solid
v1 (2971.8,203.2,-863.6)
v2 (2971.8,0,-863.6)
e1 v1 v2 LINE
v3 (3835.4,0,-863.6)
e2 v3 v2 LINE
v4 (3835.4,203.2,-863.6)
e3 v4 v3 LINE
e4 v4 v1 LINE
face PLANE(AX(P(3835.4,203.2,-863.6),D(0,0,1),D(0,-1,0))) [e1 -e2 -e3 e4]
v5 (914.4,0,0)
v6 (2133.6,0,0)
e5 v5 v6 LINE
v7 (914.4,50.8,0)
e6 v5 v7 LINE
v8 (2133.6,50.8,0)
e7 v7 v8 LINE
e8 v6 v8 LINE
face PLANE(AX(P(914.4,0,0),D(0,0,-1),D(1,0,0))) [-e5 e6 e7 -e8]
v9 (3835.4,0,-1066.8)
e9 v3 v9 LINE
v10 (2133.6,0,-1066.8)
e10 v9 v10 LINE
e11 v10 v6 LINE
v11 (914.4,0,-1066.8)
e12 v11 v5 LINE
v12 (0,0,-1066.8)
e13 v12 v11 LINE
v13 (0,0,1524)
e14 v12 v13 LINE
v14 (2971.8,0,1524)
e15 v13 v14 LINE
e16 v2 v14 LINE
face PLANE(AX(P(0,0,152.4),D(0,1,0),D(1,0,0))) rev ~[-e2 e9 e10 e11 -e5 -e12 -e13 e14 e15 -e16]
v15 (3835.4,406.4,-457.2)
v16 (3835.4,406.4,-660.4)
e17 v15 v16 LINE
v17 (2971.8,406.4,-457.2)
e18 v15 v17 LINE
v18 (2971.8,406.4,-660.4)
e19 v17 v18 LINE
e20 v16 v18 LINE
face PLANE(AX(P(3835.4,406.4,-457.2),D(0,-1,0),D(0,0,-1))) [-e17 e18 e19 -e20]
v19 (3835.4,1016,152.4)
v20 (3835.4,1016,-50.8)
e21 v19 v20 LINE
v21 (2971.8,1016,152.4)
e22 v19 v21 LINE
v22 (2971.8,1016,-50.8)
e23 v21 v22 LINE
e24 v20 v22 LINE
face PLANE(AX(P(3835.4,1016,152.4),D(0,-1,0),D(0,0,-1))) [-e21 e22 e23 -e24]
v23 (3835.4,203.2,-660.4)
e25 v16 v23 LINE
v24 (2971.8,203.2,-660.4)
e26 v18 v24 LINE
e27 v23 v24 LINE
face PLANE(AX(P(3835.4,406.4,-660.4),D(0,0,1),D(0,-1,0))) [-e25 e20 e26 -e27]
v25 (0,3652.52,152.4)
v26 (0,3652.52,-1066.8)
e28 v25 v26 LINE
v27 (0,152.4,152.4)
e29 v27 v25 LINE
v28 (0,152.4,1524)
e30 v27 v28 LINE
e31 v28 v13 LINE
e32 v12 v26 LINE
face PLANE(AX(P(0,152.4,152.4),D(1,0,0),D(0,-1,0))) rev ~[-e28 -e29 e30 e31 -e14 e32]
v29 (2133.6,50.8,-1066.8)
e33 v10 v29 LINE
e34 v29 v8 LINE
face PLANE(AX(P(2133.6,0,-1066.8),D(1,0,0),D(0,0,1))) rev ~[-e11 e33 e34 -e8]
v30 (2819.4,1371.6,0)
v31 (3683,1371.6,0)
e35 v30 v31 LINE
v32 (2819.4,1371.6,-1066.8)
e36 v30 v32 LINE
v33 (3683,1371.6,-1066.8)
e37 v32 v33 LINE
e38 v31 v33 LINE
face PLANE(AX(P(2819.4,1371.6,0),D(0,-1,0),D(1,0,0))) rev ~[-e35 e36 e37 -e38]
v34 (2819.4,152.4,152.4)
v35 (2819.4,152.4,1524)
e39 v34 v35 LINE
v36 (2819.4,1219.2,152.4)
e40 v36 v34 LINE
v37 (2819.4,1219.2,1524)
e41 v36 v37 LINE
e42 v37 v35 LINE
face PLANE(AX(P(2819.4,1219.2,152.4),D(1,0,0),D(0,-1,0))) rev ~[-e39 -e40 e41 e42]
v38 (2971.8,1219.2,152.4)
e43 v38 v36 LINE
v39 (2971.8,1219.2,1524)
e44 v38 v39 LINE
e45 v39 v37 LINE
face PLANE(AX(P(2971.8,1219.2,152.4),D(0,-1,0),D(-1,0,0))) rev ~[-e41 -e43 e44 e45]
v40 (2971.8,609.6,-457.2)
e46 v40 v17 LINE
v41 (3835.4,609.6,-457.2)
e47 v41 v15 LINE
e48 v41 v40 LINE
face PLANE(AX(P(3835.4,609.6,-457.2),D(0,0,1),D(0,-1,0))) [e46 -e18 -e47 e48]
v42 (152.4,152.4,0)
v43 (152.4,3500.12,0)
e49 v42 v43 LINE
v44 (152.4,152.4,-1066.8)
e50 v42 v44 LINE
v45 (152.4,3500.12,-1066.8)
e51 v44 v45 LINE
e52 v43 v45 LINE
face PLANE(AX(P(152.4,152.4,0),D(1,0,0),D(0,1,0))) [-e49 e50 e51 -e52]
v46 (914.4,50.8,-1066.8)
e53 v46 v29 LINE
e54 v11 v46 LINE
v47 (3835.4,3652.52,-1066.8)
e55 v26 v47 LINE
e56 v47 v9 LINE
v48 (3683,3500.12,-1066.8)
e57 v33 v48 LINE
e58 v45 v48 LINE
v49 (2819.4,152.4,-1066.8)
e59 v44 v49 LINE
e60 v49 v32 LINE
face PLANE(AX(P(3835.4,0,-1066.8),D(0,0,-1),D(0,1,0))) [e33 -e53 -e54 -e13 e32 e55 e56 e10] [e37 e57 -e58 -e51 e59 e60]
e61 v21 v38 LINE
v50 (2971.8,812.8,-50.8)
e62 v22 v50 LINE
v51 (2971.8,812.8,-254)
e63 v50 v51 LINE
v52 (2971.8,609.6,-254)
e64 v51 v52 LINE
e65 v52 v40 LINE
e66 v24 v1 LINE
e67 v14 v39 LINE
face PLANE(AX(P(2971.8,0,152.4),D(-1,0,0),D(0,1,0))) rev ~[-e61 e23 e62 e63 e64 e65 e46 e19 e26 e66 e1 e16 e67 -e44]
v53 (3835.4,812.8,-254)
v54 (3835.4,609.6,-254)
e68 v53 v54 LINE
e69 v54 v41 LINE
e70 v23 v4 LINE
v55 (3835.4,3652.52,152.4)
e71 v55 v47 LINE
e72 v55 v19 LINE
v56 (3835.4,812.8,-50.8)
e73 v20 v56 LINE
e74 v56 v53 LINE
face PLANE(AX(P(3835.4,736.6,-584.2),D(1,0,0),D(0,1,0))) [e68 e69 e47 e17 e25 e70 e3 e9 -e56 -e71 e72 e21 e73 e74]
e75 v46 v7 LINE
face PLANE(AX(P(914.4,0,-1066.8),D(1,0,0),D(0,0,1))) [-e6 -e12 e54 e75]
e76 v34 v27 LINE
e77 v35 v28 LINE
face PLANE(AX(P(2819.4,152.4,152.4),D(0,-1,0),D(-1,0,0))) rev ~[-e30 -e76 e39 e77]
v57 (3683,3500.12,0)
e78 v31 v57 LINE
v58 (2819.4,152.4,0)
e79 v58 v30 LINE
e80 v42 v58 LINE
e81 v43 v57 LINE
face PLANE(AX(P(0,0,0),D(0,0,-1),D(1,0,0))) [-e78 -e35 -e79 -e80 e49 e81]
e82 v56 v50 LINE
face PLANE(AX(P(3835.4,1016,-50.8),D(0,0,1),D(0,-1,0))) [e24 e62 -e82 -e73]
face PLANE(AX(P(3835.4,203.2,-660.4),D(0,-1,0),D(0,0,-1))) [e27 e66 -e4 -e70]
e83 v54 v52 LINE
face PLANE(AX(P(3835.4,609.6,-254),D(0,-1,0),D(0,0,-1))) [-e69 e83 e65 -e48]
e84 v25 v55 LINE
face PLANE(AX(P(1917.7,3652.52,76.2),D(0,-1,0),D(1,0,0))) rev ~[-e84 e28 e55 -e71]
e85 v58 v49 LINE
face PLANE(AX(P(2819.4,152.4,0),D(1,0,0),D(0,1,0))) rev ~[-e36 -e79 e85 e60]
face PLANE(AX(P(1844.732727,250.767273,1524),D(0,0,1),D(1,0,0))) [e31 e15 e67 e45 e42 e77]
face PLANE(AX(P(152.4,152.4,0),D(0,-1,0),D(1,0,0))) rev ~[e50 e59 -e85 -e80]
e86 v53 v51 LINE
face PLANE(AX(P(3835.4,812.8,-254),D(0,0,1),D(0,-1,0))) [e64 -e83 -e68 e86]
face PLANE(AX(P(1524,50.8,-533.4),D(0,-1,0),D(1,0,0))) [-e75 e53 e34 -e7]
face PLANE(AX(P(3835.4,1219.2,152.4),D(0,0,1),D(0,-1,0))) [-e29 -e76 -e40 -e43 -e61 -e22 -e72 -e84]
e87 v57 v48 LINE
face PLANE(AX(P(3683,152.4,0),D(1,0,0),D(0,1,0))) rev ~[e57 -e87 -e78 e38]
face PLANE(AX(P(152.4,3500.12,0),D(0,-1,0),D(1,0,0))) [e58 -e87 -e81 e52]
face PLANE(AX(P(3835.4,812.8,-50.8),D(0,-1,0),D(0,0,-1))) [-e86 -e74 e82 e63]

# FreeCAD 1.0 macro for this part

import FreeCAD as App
import Part
import Sketcher
from FreeCAD import Vector
Q = App.Units.Quantity

doc = App.newDocument("Part")
params = doc.addObject("Spreadsheet::Sheet", "Params")
for row, (alias, value) in enumerate([
    ("sketch1_width", "151 in"),
    ("sketch1_width2", "139 in"),
    ("sketch1_height", "143.8 in"),
    ("sketch1_height2", "131.8 in"),
    ("pad1_length", "42 in"),
    ("sketch2_width", "151 in"),
    ("sketch2_height", "6 in"),
    ("pad2_length", "143.8 in"),
    ("sketch3_width", "34 in"),
    ("sketch3_height", "48 in"),
    ("sketch4_width", "34 in"),
    ("sketch4_width2", "28 in"),
    ("sketch4_height", "48 in"),
    ("pad3_length", "42 in"),
    ("sketch5_width", "48 in"),
    ("sketch5_height", "42 in"),
    ("pocket2_length", "2 in"),
    ("sketch6_width", "48 in"),
    ("pad4_length", "34 in"),
    ("sketch7_width", "117 in"),
    ("sketch7_width2", "6 in"),
    ("sketch7_height", "48 in"),
    ("pad5_length", "54 in"),
], start=1):
    params.set(f"A{row}", alias)
    params.set(f"B{row}", "=" + value)
    params.setAlias(f"B{row}", alias)

body = doc.addObject("PartDesign::Body", "Body")

# Sketch on XY plane
sketch1 = body.newObject("Sketcher::SketchObject", "Sketch")
sketch1.AttachmentSupport = (doc.getObject("XY_Plane"), [""])
sketch1.MapMode = "FlatFace"
sketch1.addGeometry(Part.LineSegment(Vector(0, 3653, 0), Vector(0, 0, 0)), False)
sketch1.addGeometry(Part.LineSegment(Vector(0, 0, 0), Vector(3835, 0, 0)), False)
sketch1.addGeometry(Part.LineSegment(Vector(3835, 0, 0), Vector(3835, 3653, 0)), False)
sketch1.addGeometry(Part.LineSegment(Vector(3835, 3653, 0), Vector(0, 3653, 0)), False)
sketch1.addGeometry(Part.LineSegment(Vector(3683, 152, 0), Vector(152, 152, 0)), False)
sketch1.addGeometry(Part.LineSegment(Vector(152, 152, 0), Vector(152, 3500, 0)), False)
sketch1.addGeometry(Part.LineSegment(Vector(152, 3500, 0), Vector(3683, 3500, 0)), False)
sketch1.addGeometry(Part.LineSegment(Vector(3683, 3500, 0), Vector(3683, 152, 0)), False)
sketch1.addConstraint(Sketcher.Constraint("Coincident", 0, 2, 1, 1))
sketch1.addConstraint(Sketcher.Constraint("Coincident", 1, 2, 2, 1))
sketch1.addConstraint(Sketcher.Constraint("Coincident", 2, 2, 3, 1))
sketch1.addConstraint(Sketcher.Constraint("Coincident", 3, 2, 0, 1))
sketch1.addConstraint(Sketcher.Constraint("Coincident", 4, 2, 5, 1))
sketch1.addConstraint(Sketcher.Constraint("Coincident", 5, 2, 6, 1))
sketch1.addConstraint(Sketcher.Constraint("Coincident", 6, 2, 7, 1))
sketch1.addConstraint(Sketcher.Constraint("Coincident", 7, 2, 4, 1))
sketch1.addConstraint(Sketcher.Constraint("Vertical", 0))
sketch1.addConstraint(Sketcher.Constraint("Horizontal", 1))
sketch1.addConstraint(Sketcher.Constraint("Vertical", 2))
sketch1.addConstraint(Sketcher.Constraint("Horizontal", 3))
sketch1.addConstraint(Sketcher.Constraint("Horizontal", 4))
sketch1.addConstraint(Sketcher.Constraint("Vertical", 5))
sketch1.addConstraint(Sketcher.Constraint("Horizontal", 6))
sketch1.addConstraint(Sketcher.Constraint("Vertical", 7))
sketch1.addConstraint(Sketcher.Constraint("Coincident", 0, 2, -1, 1))
sketch1.addConstraint(Sketcher.Constraint("DistanceX", 1, 1, 1, 2, Q("151 in")))
sketch1.addConstraint(Sketcher.Constraint("DistanceX", 4, 2, 4, 1, Q("139 in")))
sketch1.addConstraint(Sketcher.Constraint("DistanceY", 0, 2, 0, 1, Q("143.8 in")))
sketch1.addConstraint(Sketcher.Constraint("DistanceY", 5, 1, 5, 2, Q("131.8 in")))
sketch1.addConstraint(Sketcher.Constraint("DistanceX", -1, 1, 4, 2, Q("6 in")))
sketch1.addConstraint(Sketcher.Constraint("DistanceY", -1, 1, 4, 2, Q("6 in")))
sketch1.setExpression("Constraints[17]", "Params.sketch1_width")
sketch1.setExpression("Constraints[18]", "Params.sketch1_width2")
sketch1.setExpression("Constraints[19]", "Params.sketch1_height")
sketch1.setExpression("Constraints[20]", "Params.sketch1_height2")
pad1 = body.newObject("PartDesign::Pad", "Pad")
pad1.Profile = sketch1
pad1.setExpression("Length", "Params.pad1_length")
pad1.Reversed = True

# Sketch on XZ plane
sketch2 = body.newObject("Sketcher::SketchObject", "Sketch001")
sketch2.AttachmentSupport = (doc.getObject("XZ_Plane"), [""])
sketch2.MapMode = "FlatFace"
sketch2.addGeometry(Part.LineSegment(Vector(0, 152, 0), Vector(0, 0, 0)), False)
sketch2.addGeometry(Part.LineSegment(Vector(0, 0, 0), Vector(3835, 0, 0)), False)
sketch2.addGeometry(Part.LineSegment(Vector(3835, 0, 0), Vector(3835, 152, 0)), False)
sketch2.addGeometry(Part.LineSegment(Vector(3835, 152, 0), Vector(0, 152, 0)), False)
sketch2.addConstraint(Sketcher.Constraint("Coincident", 0, 2, 1, 1))
sketch2.addConstraint(Sketcher.Constraint("Coincident", 1, 2, 2, 1))
sketch2.addConstraint(Sketcher.Constraint("Coincident", 2, 2, 3, 1))
sketch2.addConstraint(Sketcher.Constraint("Coincident", 3, 2, 0, 1))
sketch2.addConstraint(Sketcher.Constraint("Vertical", 0))
sketch2.addConstraint(Sketcher.Constraint("Horizontal", 1))
sketch2.addConstraint(Sketcher.Constraint("Vertical", 2))
sketch2.addConstraint(Sketcher.Constraint("Horizontal", 3))
sketch2.addConstraint(Sketcher.Constraint("Coincident", 0, 2, -1, 1))
sketch2.addConstraint(Sketcher.Constraint("DistanceX", 1, 1, 1, 2, Q("151 in")))
sketch2.addConstraint(Sketcher.Constraint("DistanceY", 0, 2, 0, 1, Q("6 in")))
sketch2.setExpression("Constraints[9]", "Params.sketch2_width")
sketch2.setExpression("Constraints[10]", "Params.sketch2_height")
pad2 = body.newObject("PartDesign::Pad", "Pad001")
pad2.Profile = sketch2
pad2.setExpression("Length", "Params.pad2_length")
pad2.Reversed = True

# Sketch on XY plane
sketch3 = body.newObject("Sketcher::SketchObject", "Sketch002")
sketch3.AttachmentSupport = (doc.getObject("XY_Plane"), [""])
sketch3.MapMode = "FlatFace"
sketch3.AttachmentOffset = App.Placement(Vector(0, 0, 6 * 25.4), App.Rotation())
sketch3.addGeometry(Part.LineSegment(Vector(2972, 1219, 0), Vector(2972, 0, 0)), False)
sketch3.addGeometry(Part.LineSegment(Vector(2972, 0, 0), Vector(3835, 0, 0)), False)
sketch3.addGeometry(Part.LineSegment(Vector(3835, 0, 0), Vector(3835, 1219, 0)), False)
sketch3.addGeometry(Part.LineSegment(Vector(3835, 1219, 0), Vector(2972, 1219, 0)), False)
sketch3.addConstraint(Sketcher.Constraint("Coincident", 0, 2, 1, 1))
sketch3.addConstraint(Sketcher.Constraint("Coincident", 1, 2, 2, 1))
sketch3.addConstraint(Sketcher.Constraint("Coincident", 2, 2, 3, 1))
sketch3.addConstraint(Sketcher.Constraint("Coincident", 3, 2, 0, 1))
sketch3.addConstraint(Sketcher.Constraint("Vertical", 0))
sketch3.addConstraint(Sketcher.Constraint("Horizontal", 1))
sketch3.addConstraint(Sketcher.Constraint("Vertical", 2))
sketch3.addConstraint(Sketcher.Constraint("Horizontal", 3))
sketch3.addConstraint(Sketcher.Constraint("PointOnObject", 0, 2, -1))
sketch3.addConstraint(Sketcher.Constraint("DistanceX", 1, 1, 1, 2, Q("34 in")))
sketch3.addConstraint(Sketcher.Constraint("DistanceY", 0, 2, 0, 1, Q("48 in")))
sketch3.addConstraint(Sketcher.Constraint("DistanceX", -1, 1, 0, 2, Q("117 in")))
sketch3.setExpression("Constraints[9]", "Params.sketch3_width")
sketch3.setExpression("Constraints[10]", "Params.sketch3_height")
pocket1 = body.newObject("PartDesign::Pocket", "Pocket")
pocket1.Profile = sketch3
pocket1.Type = "ThroughAll"

# Sketch on XY plane
sketch4 = body.newObject("Sketcher::SketchObject", "Sketch003")
sketch4.AttachmentSupport = (doc.getObject("XY_Plane"), [""])
sketch4.MapMode = "FlatFace"
sketch4.addGeometry(Part.LineSegment(Vector(2819, 152, 0), Vector(2819, 1372, 0)), False)
sketch4.addGeometry(Part.LineSegment(Vector(2819, 1372, 0), Vector(3683, 1372, 0)), False)
sketch4.addGeometry(Part.LineSegment(Vector(3683, 1372, 0), Vector(3683, 1219, 0)), False)
sketch4.addGeometry(Part.LineSegment(Vector(3683, 1219, 0), Vector(2972, 1219, 0)), False)
sketch4.addGeometry(Part.LineSegment(Vector(2972, 1219, 0), Vector(2972, 152, 0)), False)
sketch4.addGeometry(Part.LineSegment(Vector(2972, 152, 0), Vector(2819, 152, 0)), False)
sketch4.addConstraint(Sketcher.Constraint("Coincident", 0, 2, 1, 1))
sketch4.addConstraint(Sketcher.Constraint("Coincident", 1, 2, 2, 1))
sketch4.addConstraint(Sketcher.Constraint("Coincident", 2, 2, 3, 1))
sketch4.addConstraint(Sketcher.Constraint("Coincident", 3, 2, 4, 1))
sketch4.addConstraint(Sketcher.Constraint("Coincident", 4, 2, 5, 1))
sketch4.addConstraint(Sketcher.Constraint("Coincident", 5, 2, 0, 1))
sketch4.addConstraint(Sketcher.Constraint("Vertical", 0))
sketch4.addConstraint(Sketcher.Constraint("Horizontal", 1))
sketch4.addConstraint(Sketcher.Constraint("Vertical", 2))
sketch4.addConstraint(Sketcher.Constraint("Horizontal", 3))
sketch4.addConstraint(Sketcher.Constraint("Vertical", 4))
sketch4.addConstraint(Sketcher.Constraint("Horizontal", 5))
sketch4.addConstraint(Sketcher.Constraint("Equal", 5, 2))
sketch4.addConstraint(Sketcher.Constraint("DistanceX", 1, 1, 1, 2, Q("34 in")))
sketch4.addConstraint(Sketcher.Constraint("DistanceX", 3, 2, 3, 1, Q("28 in")))
sketch4.addConstraint(Sketcher.Constraint("DistanceY", 0, 1, 0, 2, Q("48 in")))
sketch4.addConstraint(Sketcher.Constraint("DistanceX", -1, 1, 0, 2, Q("111 in")))
sketch4.addConstraint(Sketcher.Constraint("DistanceY", -1, 1, 0, 2, Q("54 in")))
sketch4.setExpression("Constraints[13]", "Params.sketch4_width")
sketch4.setExpression("Constraints[14]", "Params.sketch4_width2")
sketch4.setExpression("Constraints[15]", "Params.sketch4_height")
pad3 = body.newObject("PartDesign::Pad", "Pad002")
pad3.Profile = sketch4
pad3.setExpression("Length", "Params.pad3_length")
pad3.Reversed = True

# Sketch on XZ plane
sketch5 = body.newObject("Sketcher::SketchObject", "Sketch004")
sketch5.AttachmentSupport = (doc.getObject("XZ_Plane"), [""])
sketch5.MapMode = "FlatFace"
sketch5.addGeometry(Part.LineSegment(Vector(914, 0, 0), Vector(914, -1067, 0)), False)
sketch5.addGeometry(Part.LineSegment(Vector(914, -1067, 0), Vector(2134, -1067, 0)), False)
sketch5.addGeometry(Part.LineSegment(Vector(2134, -1067, 0), Vector(2134, 0, 0)), False)
sketch5.addGeometry(Part.LineSegment(Vector(2134, 0, 0), Vector(914, 0, 0)), False)
sketch5.addConstraint(Sketcher.Constraint("Coincident", 0, 2, 1, 1))
sketch5.addConstraint(Sketcher.Constraint("Coincident", 1, 2, 2, 1))
sketch5.addConstraint(Sketcher.Constraint("Coincident", 2, 2, 3, 1))
sketch5.addConstraint(Sketcher.Constraint("Coincident", 3, 2, 0, 1))
sketch5.addConstraint(Sketcher.Constraint("Vertical", 0))
sketch5.addConstraint(Sketcher.Constraint("Horizontal", 1))
sketch5.addConstraint(Sketcher.Constraint("Vertical", 2))
sketch5.addConstraint(Sketcher.Constraint("Horizontal", 3))
sketch5.addConstraint(Sketcher.Constraint("PointOnObject", 2, 2, -1))
sketch5.addConstraint(Sketcher.Constraint("DistanceX", 1, 1, 1, 2, Q("48 in")))
sketch5.addConstraint(Sketcher.Constraint("DistanceY", 0, 2, 0, 1, Q("42 in")))
sketch5.addConstraint(Sketcher.Constraint("DistanceX", -1, 1, 0, 2, Q("36 in")))
sketch5.setExpression("Constraints[9]", "Params.sketch5_width")
sketch5.setExpression("Constraints[10]", "Params.sketch5_height")
pocket2 = body.newObject("PartDesign::Pocket", "Pocket001")
pocket2.Profile = sketch5
pocket2.setExpression("Length", "Params.pocket2_length")

# Sketch on YZ plane
sketch6 = body.newObject("Sketcher::SketchObject", "Sketch005")
sketch6.AttachmentSupport = (doc.getObject("YZ_Plane"), [""])
sketch6.MapMode = "FlatFace"
sketch6.AttachmentOffset = App.Placement(Vector(0, 0, 151 * 25.4), App.Rotation())
sketch6.addGeometry(Part.LineSegment(Vector(0, -1067, 0), Vector(1219, -1067, 0)), False)
sketch6.addGeometry(Part.LineSegment(Vector(1219, -1067, 0), Vector(1219, 152, 0)), False)
sketch6.addGeometry(Part.LineSegment(Vector(1219, 152, 0), Vector(1016, 152, 0)), False)
sketch6.addGeometry(Part.LineSegment(Vector(1016, 152, 0), Vector(1016, -51, 0)), False)
sketch6.addGeometry(Part.LineSegment(Vector(1016, -51, 0), Vector(813, -51, 0)), False)
sketch6.addGeometry(Part.LineSegment(Vector(813, -51, 0), Vector(813, -254, 0)), False)
sketch6.addGeometry(Part.LineSegment(Vector(813, -254, 0), Vector(610, -254, 0)), False)
sketch6.addGeometry(Part.LineSegment(Vector(610, -254, 0), Vector(610, -457, 0)), False)
sketch6.addGeometry(Part.LineSegment(Vector(610, -457, 0), Vector(406, -457, 0)), False)
sketch6.addGeometry(Part.LineSegment(Vector(406, -457, 0), Vector(406, -660, 0)), False)
sketch6.addGeometry(Part.LineSegment(Vector(406, -660, 0), Vector(203, -660, 0)), False)
sketch6.addGeometry(Part.LineSegment(Vector(203, -660, 0), Vector(203, -864, 0)), False)
sketch6.addGeometry(Part.LineSegment(Vector(203, -864, 0), Vector(0, -864, 0)), False)
sketch6.addGeometry(Part.LineSegment(Vector(0, -864, 0), Vector(0, -1067, 0)), False)
sketch6.addConstraint(Sketcher.Constraint("Coincident", 0, 2, 1, 1))
sketch6.addConstraint(Sketcher.Constraint("Coincident", 1, 2, 2, 1))
sketch6.addConstraint(Sketcher.Constraint("Coincident", 2, 2, 3, 1))
sketch6.addConstraint(Sketcher.Constraint("Coincident", 3, 2, 4, 1))
sketch6.addConstraint(Sketcher.Constraint("Coincident", 4, 2, 5, 1))
sketch6.addConstraint(Sketcher.Constraint("Coincident", 5, 2, 6, 1))
sketch6.addConstraint(Sketcher.Constraint("Coincident", 6, 2, 7, 1))
sketch6.addConstraint(Sketcher.Constraint("Coincident", 7, 2, 8, 1))
sketch6.addConstraint(Sketcher.Constraint("Coincident", 8, 2, 9, 1))
sketch6.addConstraint(Sketcher.Constraint("Coincident", 9, 2, 10, 1))
sketch6.addConstraint(Sketcher.Constraint("Coincident", 10, 2, 11, 1))
sketch6.addConstraint(Sketcher.Constraint("Coincident", 11, 2, 12, 1))
sketch6.addConstraint(Sketcher.Constraint("Coincident", 12, 2, 13, 1))
sketch6.addConstraint(Sketcher.Constraint("Coincident", 13, 2, 0, 1))
sketch6.addConstraint(Sketcher.Constraint("Horizontal", 0))
sketch6.addConstraint(Sketcher.Constraint("Vertical", 1))
sketch6.addConstraint(Sketcher.Constraint("Horizontal", 2))
sketch6.addConstraint(Sketcher.Constraint("Vertical", 3))
sketch6.addConstraint(Sketcher.Constraint("Horizontal", 4))
sketch6.addConstraint(Sketcher.Constraint("Vertical", 5))
sketch6.addConstraint(Sketcher.Constraint("Horizontal", 6))
sketch6.addConstraint(Sketcher.Constraint("Vertical", 7))
sketch6.addConstraint(Sketcher.Constraint("Horizontal", 8))
sketch6.addConstraint(Sketcher.Constraint("Vertical", 9))
sketch6.addConstraint(Sketcher.Constraint("Horizontal", 10))
sketch6.addConstraint(Sketcher.Constraint("Vertical", 11))
sketch6.addConstraint(Sketcher.Constraint("Horizontal", 12))
sketch6.addConstraint(Sketcher.Constraint("Vertical", 13))
sketch6.addConstraint(Sketcher.Constraint("PointOnObject", 12, 2, -2))
sketch6.addConstraint(Sketcher.Constraint("Equal", 2, 4))
sketch6.addConstraint(Sketcher.Constraint("Equal", 4, 6))
sketch6.addConstraint(Sketcher.Constraint("Equal", 6, 8))
sketch6.addConstraint(Sketcher.Constraint("Equal", 8, 10))
sketch6.addConstraint(Sketcher.Constraint("Equal", 10, 12))
sketch6.addConstraint(Sketcher.Constraint("Equal", 0, 1))
sketch6.addConstraint(Sketcher.Constraint("Equal", 12, 3))
sketch6.addConstraint(Sketcher.Constraint("Equal", 3, 5))
sketch6.addConstraint(Sketcher.Constraint("Equal", 5, 7))
sketch6.addConstraint(Sketcher.Constraint("Equal", 7, 9))
sketch6.addConstraint(Sketcher.Constraint("Equal", 9, 11))
sketch6.addConstraint(Sketcher.Constraint("DistanceX", 0, 1, 0, 2, Q("48 in")))
sketch6.addConstraint(Sketcher.Constraint("DistanceY", 0, 2, -1, 1, Q("42 in")))
sketch6.setExpression("Constraints[40]", "Params.sketch6_width")
pad4 = body.newObject("PartDesign::Pad", "Pad003")
pad4.Profile = sketch6
pad4.setExpression("Length", "Params.pad4_length")
pad4.Reversed = True

# Sketch on XY plane
sketch7 = body.newObject("Sketcher::SketchObject", "Sketch006")
sketch7.AttachmentSupport = (doc.getObject("XY_Plane"), [""])
sketch7.MapMode = "FlatFace"
sketch7.AttachmentOffset = App.Placement(Vector(0, 0, 6 * 25.4), App.Rotation())
sketch7.addGeometry(Part.LineSegment(Vector(0, 152, 0), Vector(0, 0, 0)), False)
sketch7.addGeometry(Part.LineSegment(Vector(0, 0, 0), Vector(2972, 0, 0)), False)
sketch7.addGeometry(Part.LineSegment(Vector(2972, 0, 0), Vector(2972, 1219, 0)), False)
sketch7.addGeometry(Part.LineSegment(Vector(2972, 1219, 0), Vector(2819, 1219, 0)), False)
sketch7.addGeometry(Part.LineSegment(Vector(2819, 1219, 0), Vector(2819, 152, 0)), False)
sketch7.addGeometry(Part.LineSegment(Vector(2819, 152, 0), Vector(0, 152, 0)), False)
sketch7.addConstraint(Sketcher.Constraint("Coincident", 0, 2, 1, 1))
sketch7.addConstraint(Sketcher.Constraint("Coincident", 1, 2, 2, 1))
sketch7.addConstraint(Sketcher.Constraint("Coincident", 2, 2, 3, 1))
sketch7.addConstraint(Sketcher.Constraint("Coincident", 3, 2, 4, 1))
sketch7.addConstraint(Sketcher.Constraint("Coincident", 4, 2, 5, 1))
sketch7.addConstraint(Sketcher.Constraint("Coincident", 5, 2, 0, 1))
sketch7.addConstraint(Sketcher.Constraint("Vertical", 0))
sketch7.addConstraint(Sketcher.Constraint("Horizontal", 1))
sketch7.addConstraint(Sketcher.Constraint("Vertical", 2))
sketch7.addConstraint(Sketcher.Constraint("Horizontal", 3))
sketch7.addConstraint(Sketcher.Constraint("Vertical", 4))
sketch7.addConstraint(Sketcher.Constraint("Horizontal", 5))
sketch7.addConstraint(Sketcher.Constraint("Coincident", 0, 2, -1, 1))
sketch7.addConstraint(Sketcher.Constraint("Equal", 3, 0))
sketch7.addConstraint(Sketcher.Constraint("DistanceX", 1, 1, 1, 2, Q("117 in")))
sketch7.addConstraint(Sketcher.Constraint("DistanceX", 3, 2, 3, 1, Q("6 in")))
sketch7.addConstraint(Sketcher.Constraint("DistanceY", 2, 1, 2, 2, Q("48 in")))
sketch7.setExpression("Constraints[14]", "Params.sketch7_width")
sketch7.setExpression("Constraints[15]", "Params.sketch7_width2")
sketch7.setExpression("Constraints[16]", "Params.sketch7_height")
pad5 = body.newObject("PartDesign::Pad", "Pad004")
pad5.Profile = sketch7
pad5.setExpression("Length", "Params.pad5_length")

doc.recompute()
